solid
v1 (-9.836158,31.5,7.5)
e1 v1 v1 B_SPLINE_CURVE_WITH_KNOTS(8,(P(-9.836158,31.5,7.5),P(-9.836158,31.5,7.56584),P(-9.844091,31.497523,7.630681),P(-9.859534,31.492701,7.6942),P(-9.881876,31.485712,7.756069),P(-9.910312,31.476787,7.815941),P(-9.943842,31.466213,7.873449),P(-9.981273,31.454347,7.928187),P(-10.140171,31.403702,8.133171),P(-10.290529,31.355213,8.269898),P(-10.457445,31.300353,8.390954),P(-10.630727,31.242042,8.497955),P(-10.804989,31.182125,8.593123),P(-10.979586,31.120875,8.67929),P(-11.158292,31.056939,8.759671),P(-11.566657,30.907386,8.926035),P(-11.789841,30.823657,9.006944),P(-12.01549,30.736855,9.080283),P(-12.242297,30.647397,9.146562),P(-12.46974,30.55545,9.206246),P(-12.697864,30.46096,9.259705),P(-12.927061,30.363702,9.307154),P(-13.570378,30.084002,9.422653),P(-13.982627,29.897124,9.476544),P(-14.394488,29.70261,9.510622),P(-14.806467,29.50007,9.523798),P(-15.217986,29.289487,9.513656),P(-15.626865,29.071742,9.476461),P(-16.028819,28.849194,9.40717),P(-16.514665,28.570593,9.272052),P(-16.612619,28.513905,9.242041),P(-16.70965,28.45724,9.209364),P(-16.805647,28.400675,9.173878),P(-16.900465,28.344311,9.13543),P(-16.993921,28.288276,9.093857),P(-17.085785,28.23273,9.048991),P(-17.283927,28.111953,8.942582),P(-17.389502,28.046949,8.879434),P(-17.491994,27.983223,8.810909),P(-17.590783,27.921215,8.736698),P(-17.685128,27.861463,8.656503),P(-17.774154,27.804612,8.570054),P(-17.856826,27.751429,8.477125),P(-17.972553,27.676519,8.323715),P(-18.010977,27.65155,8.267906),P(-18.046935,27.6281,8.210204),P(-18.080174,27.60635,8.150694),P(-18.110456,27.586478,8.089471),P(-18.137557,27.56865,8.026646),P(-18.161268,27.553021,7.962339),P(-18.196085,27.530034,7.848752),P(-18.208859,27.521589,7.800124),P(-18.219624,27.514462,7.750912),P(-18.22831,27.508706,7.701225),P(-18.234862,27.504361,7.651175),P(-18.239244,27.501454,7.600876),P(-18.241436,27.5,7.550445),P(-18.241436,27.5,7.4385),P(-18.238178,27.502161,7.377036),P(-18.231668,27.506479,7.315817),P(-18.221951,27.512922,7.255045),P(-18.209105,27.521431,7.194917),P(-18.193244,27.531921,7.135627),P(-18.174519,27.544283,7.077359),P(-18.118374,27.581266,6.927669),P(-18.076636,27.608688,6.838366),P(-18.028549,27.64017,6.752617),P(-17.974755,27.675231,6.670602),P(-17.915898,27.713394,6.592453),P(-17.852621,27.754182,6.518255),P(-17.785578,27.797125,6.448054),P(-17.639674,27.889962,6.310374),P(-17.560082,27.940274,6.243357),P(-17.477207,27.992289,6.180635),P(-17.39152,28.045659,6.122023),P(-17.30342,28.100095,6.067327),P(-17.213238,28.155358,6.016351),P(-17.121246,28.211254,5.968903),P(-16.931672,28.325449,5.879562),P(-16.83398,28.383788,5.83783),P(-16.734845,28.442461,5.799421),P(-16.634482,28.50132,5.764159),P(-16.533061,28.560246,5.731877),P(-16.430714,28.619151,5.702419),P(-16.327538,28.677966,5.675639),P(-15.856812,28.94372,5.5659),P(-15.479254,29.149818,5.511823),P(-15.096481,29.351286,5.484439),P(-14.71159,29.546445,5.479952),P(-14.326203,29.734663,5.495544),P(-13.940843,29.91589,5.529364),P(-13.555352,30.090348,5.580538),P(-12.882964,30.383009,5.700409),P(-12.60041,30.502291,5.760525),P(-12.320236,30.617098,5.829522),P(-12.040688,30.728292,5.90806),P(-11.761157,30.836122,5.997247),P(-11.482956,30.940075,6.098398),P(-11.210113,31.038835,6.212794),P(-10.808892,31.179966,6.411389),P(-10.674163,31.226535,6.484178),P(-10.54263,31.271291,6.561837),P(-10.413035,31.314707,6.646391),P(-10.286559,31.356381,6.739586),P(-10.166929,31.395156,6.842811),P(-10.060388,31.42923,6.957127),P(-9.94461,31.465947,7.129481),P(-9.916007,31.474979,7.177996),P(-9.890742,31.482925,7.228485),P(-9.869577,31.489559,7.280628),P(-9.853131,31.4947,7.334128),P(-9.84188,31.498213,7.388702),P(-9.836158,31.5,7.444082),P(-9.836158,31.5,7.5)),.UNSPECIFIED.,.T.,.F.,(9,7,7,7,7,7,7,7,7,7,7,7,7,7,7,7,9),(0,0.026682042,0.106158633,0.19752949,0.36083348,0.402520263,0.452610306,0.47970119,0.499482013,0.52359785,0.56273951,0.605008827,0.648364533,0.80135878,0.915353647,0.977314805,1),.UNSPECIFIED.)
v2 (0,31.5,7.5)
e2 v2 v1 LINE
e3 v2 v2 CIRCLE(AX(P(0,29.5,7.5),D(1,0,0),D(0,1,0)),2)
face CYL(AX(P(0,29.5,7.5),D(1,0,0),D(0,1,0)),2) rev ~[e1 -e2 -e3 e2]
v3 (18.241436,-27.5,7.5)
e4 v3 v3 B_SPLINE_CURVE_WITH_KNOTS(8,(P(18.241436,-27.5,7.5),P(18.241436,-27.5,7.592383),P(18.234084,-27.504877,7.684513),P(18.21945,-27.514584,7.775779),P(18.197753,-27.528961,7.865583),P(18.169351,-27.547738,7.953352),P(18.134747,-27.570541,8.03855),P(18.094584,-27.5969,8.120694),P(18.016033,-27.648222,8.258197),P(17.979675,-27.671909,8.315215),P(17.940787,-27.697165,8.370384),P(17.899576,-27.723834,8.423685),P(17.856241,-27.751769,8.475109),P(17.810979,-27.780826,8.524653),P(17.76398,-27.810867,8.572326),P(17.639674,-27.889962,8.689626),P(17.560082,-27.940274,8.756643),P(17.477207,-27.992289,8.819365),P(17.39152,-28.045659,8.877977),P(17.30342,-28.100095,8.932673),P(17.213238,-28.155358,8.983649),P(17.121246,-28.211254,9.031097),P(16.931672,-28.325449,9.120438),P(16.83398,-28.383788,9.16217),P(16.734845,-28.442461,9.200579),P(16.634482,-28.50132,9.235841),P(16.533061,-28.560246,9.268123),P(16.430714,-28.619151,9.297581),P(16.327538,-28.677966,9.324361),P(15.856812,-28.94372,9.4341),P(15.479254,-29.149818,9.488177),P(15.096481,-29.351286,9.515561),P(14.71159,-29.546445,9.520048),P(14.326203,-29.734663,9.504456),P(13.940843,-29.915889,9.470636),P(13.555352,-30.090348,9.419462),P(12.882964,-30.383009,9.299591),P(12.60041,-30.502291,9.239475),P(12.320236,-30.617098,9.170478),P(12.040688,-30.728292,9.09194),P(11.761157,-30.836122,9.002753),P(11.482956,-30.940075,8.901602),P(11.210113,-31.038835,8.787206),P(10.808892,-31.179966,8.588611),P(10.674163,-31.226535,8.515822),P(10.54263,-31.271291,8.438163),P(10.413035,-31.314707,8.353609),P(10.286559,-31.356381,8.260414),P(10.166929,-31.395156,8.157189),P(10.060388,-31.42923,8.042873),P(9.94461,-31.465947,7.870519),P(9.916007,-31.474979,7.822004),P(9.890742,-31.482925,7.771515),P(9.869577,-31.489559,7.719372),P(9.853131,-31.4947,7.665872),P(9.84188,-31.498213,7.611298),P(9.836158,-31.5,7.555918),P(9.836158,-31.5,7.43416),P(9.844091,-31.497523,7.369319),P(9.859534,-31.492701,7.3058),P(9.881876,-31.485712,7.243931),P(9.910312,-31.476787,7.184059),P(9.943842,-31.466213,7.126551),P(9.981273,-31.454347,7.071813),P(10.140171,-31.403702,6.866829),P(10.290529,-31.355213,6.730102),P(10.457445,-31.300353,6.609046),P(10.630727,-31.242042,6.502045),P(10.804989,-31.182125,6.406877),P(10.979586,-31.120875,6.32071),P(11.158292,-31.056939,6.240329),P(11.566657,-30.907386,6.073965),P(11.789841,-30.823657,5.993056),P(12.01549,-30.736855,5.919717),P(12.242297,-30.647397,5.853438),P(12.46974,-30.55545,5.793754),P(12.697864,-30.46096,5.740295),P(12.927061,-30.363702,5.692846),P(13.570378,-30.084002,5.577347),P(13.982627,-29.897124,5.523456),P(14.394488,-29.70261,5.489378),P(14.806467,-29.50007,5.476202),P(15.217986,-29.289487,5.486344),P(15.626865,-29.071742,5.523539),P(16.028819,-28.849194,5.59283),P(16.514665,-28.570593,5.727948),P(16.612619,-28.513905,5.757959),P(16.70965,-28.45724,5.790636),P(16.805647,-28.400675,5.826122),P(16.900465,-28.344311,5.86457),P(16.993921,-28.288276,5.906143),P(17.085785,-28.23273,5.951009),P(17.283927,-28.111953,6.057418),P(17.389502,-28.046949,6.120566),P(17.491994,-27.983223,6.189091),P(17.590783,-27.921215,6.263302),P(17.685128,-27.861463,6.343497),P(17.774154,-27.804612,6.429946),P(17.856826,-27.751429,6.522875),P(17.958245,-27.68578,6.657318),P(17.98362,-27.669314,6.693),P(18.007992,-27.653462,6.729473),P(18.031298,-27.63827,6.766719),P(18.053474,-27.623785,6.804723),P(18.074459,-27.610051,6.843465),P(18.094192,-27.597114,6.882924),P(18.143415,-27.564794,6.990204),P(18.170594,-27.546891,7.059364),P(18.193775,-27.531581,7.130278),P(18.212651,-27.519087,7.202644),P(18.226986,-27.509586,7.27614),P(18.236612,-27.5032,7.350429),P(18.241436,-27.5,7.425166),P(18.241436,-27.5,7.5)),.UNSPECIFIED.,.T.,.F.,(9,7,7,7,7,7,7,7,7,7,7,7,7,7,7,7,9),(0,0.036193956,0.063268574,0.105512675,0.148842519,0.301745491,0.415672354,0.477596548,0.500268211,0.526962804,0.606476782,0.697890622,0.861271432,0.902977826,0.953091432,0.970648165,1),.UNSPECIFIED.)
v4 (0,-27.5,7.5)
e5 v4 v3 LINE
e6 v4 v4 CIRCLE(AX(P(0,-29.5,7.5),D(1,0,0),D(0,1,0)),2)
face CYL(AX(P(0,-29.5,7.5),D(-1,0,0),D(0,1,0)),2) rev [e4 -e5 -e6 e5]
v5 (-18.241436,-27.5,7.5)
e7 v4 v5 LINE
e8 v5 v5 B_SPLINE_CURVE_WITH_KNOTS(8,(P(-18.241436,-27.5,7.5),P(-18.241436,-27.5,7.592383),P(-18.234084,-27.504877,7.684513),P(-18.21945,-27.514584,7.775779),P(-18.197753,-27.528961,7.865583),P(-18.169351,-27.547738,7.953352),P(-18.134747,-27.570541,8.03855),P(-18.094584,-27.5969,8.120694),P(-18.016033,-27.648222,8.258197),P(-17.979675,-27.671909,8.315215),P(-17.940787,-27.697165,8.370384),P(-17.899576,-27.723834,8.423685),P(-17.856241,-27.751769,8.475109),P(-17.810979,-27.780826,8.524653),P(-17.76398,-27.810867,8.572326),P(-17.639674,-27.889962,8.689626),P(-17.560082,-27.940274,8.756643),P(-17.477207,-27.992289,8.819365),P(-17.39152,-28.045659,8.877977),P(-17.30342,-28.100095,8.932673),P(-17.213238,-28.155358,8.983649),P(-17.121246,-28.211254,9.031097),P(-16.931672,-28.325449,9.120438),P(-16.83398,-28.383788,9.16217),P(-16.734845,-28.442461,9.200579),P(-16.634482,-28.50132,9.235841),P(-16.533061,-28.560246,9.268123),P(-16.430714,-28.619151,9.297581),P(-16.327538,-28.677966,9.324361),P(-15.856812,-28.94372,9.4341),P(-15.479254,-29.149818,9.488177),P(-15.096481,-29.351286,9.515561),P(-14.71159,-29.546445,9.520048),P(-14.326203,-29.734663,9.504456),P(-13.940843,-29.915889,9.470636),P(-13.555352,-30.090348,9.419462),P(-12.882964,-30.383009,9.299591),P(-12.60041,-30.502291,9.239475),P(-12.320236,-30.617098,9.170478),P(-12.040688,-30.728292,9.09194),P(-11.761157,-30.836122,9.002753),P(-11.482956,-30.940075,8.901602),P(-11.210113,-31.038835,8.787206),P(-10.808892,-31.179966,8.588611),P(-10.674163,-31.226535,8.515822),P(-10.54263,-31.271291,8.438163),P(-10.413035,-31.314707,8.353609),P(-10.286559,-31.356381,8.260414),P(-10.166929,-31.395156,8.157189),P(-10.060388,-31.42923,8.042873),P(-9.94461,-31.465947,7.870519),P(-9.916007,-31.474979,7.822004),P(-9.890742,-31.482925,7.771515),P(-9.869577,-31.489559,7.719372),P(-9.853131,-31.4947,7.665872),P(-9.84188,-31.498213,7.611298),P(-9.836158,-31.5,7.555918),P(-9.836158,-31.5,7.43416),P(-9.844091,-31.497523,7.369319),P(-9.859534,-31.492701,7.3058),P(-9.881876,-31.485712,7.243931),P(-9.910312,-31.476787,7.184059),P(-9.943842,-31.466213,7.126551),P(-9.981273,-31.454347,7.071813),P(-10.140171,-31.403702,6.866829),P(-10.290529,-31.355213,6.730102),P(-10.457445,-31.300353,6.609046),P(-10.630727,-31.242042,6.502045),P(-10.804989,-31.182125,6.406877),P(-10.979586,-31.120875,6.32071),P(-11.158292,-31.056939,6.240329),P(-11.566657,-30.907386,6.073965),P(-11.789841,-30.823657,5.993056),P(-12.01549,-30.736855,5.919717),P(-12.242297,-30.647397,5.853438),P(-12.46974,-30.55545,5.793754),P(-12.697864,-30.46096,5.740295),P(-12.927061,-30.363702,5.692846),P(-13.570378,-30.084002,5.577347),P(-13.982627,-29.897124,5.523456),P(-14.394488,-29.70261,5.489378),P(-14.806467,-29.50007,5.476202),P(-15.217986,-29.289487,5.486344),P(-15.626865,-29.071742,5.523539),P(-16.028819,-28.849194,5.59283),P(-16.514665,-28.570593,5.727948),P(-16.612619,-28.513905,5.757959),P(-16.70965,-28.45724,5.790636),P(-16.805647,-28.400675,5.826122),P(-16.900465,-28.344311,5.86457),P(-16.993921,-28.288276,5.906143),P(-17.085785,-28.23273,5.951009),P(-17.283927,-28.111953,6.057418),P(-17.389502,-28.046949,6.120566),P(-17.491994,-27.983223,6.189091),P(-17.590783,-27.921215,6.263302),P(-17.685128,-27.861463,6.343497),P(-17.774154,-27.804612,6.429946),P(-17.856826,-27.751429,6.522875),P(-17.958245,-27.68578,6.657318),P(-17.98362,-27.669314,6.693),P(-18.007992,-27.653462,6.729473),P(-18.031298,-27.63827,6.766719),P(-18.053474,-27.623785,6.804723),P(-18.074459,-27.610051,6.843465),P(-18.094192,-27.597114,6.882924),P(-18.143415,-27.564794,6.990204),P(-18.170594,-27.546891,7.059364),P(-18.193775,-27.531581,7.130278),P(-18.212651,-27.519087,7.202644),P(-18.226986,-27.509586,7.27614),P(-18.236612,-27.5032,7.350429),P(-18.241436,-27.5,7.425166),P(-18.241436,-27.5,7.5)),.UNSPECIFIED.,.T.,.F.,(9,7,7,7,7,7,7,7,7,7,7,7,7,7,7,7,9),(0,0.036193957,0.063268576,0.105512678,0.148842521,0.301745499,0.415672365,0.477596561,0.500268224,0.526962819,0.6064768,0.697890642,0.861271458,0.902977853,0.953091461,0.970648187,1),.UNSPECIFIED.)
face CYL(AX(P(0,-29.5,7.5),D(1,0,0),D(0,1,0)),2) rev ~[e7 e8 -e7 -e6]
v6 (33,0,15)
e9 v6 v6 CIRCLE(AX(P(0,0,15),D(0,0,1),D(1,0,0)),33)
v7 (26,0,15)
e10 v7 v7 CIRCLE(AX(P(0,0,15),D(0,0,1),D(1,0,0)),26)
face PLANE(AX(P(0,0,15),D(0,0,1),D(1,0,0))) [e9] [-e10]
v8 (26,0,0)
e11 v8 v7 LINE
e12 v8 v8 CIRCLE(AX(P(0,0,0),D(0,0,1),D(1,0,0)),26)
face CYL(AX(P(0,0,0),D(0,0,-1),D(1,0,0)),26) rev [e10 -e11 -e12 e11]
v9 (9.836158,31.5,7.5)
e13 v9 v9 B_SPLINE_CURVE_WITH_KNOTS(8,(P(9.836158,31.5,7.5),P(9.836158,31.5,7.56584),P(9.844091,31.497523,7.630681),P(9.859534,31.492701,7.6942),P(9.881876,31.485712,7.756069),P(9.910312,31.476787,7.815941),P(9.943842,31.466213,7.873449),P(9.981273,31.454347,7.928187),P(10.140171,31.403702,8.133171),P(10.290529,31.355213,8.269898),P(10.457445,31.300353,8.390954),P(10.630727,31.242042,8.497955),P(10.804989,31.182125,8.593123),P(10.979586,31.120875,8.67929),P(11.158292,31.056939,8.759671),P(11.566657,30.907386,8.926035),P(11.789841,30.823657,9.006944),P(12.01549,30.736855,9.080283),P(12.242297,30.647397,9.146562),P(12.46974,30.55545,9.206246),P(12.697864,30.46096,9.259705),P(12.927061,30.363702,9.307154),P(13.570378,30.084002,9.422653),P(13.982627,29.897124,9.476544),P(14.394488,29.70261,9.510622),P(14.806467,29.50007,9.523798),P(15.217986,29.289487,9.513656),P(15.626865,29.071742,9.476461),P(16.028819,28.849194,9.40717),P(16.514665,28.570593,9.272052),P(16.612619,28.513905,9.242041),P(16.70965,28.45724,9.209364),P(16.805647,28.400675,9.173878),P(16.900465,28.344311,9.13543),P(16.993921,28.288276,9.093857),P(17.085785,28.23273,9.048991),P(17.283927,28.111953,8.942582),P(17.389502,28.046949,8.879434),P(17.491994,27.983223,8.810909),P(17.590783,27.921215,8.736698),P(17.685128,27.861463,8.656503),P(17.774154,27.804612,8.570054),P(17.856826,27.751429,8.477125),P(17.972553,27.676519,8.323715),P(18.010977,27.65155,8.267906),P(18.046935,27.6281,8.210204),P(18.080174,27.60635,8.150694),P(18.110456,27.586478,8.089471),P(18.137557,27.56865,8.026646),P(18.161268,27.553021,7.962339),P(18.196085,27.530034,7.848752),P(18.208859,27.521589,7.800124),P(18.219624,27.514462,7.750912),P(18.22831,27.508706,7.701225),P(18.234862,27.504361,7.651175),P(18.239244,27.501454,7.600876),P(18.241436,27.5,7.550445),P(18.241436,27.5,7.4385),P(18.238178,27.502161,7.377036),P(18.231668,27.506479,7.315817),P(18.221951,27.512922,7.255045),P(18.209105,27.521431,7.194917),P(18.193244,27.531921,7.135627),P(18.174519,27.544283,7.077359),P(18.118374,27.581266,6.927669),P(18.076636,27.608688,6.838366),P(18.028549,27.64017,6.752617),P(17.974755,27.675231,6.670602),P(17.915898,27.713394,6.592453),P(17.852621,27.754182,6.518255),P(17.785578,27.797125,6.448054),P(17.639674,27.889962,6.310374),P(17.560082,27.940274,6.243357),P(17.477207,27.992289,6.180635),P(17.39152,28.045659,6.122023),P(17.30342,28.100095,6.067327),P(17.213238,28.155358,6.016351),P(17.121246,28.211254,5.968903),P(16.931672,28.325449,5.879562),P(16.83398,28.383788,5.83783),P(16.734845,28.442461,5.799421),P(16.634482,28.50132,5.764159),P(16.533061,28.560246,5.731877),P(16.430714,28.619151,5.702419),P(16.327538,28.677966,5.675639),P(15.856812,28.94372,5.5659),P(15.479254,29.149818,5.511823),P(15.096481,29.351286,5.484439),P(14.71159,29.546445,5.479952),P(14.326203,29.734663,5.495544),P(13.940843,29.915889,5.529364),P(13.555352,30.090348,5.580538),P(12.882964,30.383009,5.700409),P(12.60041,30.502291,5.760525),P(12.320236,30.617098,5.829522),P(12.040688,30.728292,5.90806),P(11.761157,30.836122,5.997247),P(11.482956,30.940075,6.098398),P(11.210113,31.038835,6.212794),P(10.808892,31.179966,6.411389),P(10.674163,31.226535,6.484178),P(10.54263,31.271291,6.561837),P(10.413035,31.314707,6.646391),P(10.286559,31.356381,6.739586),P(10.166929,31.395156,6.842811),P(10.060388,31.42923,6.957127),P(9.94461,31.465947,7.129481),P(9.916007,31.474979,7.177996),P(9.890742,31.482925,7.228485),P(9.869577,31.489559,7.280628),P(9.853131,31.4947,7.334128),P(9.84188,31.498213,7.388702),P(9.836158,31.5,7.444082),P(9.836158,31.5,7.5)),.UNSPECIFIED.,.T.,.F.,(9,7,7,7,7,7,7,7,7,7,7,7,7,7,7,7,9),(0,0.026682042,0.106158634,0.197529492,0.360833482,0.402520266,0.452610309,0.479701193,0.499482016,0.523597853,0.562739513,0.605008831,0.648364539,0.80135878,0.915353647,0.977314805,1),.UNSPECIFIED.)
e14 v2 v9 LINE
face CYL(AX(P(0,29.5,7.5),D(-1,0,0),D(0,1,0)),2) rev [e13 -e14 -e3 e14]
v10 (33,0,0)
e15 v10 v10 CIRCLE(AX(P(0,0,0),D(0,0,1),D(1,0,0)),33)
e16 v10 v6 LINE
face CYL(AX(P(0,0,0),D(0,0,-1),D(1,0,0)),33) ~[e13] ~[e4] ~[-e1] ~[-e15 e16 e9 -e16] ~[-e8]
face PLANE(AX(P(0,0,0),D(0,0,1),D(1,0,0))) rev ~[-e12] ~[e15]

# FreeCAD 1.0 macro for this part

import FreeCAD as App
import Part
import Sketcher
from FreeCAD import Vector
Q = App.Units.Quantity

doc = App.newDocument("Part")
body = doc.addObject("PartDesign::Body", "Body")

sketch1 = body.newObject("Sketcher::SketchObject", "Sketch")
sketch1.AttachmentSupport = (doc.getObject("XY_Plane"), [""])
sketch1.MapMode = "FlatFace"
sketch1.addGeometry([
    Part.Circle(Vector(0, 0, 0), Vector(0, 0, 1), 33),
    Part.Circle(Vector(0, 0, 0), Vector(0, 0, 1), 26),
], False)
sketch1.addConstraint([
    Sketcher.Constraint("Coincident", 0, 3, -1, 1),
    Sketcher.Constraint("Coincident", 1, 3, -1, 1),
    Sketcher.Constraint("Diameter", 0, Q("66 mm")),
    Sketcher.Constraint("Diameter", 1, Q("52 mm")),
])
pad1 = body.newObject("PartDesign::Pad", "Pad")
pad1.Profile = sketch1
pad1.Length = 15

sketch2 = body.newObject("Sketcher::SketchObject", "Sketch001")
sketch2.AttachmentSupport = (doc.getObject("YZ_Plane"), [""])
sketch2.MapMode = "FlatFace"
sketch2.addGeometry([
    Part.Circle(Vector(29.5, 7.5, 0), Vector(0, 0, 1), 2),
    Part.Circle(Vector(-29.5, 7.5, 0), Vector(0, 0, 1), 2),
], False)
sketch2.addConstraint([
    Sketcher.Constraint("Equal", 0, 1),
    Sketcher.Constraint("Symmetric", 0, 3, 1, 3, -2),
    Sketcher.Constraint("Diameter", 0, Q("4 mm")),
    Sketcher.Constraint("DistanceX", 1, 3, 0, 3, Q("59 mm")),
    Sketcher.Constraint("DistanceY", -1, 1, 0, 3, Q("7.5 mm")),
])
pocket1 = body.newObject("PartDesign::Pocket", "Pocket")
pocket1.Profile = sketch2
pocket1.Type = "ThroughAll"
pocket1.Midplane = True

doc.recompute()
